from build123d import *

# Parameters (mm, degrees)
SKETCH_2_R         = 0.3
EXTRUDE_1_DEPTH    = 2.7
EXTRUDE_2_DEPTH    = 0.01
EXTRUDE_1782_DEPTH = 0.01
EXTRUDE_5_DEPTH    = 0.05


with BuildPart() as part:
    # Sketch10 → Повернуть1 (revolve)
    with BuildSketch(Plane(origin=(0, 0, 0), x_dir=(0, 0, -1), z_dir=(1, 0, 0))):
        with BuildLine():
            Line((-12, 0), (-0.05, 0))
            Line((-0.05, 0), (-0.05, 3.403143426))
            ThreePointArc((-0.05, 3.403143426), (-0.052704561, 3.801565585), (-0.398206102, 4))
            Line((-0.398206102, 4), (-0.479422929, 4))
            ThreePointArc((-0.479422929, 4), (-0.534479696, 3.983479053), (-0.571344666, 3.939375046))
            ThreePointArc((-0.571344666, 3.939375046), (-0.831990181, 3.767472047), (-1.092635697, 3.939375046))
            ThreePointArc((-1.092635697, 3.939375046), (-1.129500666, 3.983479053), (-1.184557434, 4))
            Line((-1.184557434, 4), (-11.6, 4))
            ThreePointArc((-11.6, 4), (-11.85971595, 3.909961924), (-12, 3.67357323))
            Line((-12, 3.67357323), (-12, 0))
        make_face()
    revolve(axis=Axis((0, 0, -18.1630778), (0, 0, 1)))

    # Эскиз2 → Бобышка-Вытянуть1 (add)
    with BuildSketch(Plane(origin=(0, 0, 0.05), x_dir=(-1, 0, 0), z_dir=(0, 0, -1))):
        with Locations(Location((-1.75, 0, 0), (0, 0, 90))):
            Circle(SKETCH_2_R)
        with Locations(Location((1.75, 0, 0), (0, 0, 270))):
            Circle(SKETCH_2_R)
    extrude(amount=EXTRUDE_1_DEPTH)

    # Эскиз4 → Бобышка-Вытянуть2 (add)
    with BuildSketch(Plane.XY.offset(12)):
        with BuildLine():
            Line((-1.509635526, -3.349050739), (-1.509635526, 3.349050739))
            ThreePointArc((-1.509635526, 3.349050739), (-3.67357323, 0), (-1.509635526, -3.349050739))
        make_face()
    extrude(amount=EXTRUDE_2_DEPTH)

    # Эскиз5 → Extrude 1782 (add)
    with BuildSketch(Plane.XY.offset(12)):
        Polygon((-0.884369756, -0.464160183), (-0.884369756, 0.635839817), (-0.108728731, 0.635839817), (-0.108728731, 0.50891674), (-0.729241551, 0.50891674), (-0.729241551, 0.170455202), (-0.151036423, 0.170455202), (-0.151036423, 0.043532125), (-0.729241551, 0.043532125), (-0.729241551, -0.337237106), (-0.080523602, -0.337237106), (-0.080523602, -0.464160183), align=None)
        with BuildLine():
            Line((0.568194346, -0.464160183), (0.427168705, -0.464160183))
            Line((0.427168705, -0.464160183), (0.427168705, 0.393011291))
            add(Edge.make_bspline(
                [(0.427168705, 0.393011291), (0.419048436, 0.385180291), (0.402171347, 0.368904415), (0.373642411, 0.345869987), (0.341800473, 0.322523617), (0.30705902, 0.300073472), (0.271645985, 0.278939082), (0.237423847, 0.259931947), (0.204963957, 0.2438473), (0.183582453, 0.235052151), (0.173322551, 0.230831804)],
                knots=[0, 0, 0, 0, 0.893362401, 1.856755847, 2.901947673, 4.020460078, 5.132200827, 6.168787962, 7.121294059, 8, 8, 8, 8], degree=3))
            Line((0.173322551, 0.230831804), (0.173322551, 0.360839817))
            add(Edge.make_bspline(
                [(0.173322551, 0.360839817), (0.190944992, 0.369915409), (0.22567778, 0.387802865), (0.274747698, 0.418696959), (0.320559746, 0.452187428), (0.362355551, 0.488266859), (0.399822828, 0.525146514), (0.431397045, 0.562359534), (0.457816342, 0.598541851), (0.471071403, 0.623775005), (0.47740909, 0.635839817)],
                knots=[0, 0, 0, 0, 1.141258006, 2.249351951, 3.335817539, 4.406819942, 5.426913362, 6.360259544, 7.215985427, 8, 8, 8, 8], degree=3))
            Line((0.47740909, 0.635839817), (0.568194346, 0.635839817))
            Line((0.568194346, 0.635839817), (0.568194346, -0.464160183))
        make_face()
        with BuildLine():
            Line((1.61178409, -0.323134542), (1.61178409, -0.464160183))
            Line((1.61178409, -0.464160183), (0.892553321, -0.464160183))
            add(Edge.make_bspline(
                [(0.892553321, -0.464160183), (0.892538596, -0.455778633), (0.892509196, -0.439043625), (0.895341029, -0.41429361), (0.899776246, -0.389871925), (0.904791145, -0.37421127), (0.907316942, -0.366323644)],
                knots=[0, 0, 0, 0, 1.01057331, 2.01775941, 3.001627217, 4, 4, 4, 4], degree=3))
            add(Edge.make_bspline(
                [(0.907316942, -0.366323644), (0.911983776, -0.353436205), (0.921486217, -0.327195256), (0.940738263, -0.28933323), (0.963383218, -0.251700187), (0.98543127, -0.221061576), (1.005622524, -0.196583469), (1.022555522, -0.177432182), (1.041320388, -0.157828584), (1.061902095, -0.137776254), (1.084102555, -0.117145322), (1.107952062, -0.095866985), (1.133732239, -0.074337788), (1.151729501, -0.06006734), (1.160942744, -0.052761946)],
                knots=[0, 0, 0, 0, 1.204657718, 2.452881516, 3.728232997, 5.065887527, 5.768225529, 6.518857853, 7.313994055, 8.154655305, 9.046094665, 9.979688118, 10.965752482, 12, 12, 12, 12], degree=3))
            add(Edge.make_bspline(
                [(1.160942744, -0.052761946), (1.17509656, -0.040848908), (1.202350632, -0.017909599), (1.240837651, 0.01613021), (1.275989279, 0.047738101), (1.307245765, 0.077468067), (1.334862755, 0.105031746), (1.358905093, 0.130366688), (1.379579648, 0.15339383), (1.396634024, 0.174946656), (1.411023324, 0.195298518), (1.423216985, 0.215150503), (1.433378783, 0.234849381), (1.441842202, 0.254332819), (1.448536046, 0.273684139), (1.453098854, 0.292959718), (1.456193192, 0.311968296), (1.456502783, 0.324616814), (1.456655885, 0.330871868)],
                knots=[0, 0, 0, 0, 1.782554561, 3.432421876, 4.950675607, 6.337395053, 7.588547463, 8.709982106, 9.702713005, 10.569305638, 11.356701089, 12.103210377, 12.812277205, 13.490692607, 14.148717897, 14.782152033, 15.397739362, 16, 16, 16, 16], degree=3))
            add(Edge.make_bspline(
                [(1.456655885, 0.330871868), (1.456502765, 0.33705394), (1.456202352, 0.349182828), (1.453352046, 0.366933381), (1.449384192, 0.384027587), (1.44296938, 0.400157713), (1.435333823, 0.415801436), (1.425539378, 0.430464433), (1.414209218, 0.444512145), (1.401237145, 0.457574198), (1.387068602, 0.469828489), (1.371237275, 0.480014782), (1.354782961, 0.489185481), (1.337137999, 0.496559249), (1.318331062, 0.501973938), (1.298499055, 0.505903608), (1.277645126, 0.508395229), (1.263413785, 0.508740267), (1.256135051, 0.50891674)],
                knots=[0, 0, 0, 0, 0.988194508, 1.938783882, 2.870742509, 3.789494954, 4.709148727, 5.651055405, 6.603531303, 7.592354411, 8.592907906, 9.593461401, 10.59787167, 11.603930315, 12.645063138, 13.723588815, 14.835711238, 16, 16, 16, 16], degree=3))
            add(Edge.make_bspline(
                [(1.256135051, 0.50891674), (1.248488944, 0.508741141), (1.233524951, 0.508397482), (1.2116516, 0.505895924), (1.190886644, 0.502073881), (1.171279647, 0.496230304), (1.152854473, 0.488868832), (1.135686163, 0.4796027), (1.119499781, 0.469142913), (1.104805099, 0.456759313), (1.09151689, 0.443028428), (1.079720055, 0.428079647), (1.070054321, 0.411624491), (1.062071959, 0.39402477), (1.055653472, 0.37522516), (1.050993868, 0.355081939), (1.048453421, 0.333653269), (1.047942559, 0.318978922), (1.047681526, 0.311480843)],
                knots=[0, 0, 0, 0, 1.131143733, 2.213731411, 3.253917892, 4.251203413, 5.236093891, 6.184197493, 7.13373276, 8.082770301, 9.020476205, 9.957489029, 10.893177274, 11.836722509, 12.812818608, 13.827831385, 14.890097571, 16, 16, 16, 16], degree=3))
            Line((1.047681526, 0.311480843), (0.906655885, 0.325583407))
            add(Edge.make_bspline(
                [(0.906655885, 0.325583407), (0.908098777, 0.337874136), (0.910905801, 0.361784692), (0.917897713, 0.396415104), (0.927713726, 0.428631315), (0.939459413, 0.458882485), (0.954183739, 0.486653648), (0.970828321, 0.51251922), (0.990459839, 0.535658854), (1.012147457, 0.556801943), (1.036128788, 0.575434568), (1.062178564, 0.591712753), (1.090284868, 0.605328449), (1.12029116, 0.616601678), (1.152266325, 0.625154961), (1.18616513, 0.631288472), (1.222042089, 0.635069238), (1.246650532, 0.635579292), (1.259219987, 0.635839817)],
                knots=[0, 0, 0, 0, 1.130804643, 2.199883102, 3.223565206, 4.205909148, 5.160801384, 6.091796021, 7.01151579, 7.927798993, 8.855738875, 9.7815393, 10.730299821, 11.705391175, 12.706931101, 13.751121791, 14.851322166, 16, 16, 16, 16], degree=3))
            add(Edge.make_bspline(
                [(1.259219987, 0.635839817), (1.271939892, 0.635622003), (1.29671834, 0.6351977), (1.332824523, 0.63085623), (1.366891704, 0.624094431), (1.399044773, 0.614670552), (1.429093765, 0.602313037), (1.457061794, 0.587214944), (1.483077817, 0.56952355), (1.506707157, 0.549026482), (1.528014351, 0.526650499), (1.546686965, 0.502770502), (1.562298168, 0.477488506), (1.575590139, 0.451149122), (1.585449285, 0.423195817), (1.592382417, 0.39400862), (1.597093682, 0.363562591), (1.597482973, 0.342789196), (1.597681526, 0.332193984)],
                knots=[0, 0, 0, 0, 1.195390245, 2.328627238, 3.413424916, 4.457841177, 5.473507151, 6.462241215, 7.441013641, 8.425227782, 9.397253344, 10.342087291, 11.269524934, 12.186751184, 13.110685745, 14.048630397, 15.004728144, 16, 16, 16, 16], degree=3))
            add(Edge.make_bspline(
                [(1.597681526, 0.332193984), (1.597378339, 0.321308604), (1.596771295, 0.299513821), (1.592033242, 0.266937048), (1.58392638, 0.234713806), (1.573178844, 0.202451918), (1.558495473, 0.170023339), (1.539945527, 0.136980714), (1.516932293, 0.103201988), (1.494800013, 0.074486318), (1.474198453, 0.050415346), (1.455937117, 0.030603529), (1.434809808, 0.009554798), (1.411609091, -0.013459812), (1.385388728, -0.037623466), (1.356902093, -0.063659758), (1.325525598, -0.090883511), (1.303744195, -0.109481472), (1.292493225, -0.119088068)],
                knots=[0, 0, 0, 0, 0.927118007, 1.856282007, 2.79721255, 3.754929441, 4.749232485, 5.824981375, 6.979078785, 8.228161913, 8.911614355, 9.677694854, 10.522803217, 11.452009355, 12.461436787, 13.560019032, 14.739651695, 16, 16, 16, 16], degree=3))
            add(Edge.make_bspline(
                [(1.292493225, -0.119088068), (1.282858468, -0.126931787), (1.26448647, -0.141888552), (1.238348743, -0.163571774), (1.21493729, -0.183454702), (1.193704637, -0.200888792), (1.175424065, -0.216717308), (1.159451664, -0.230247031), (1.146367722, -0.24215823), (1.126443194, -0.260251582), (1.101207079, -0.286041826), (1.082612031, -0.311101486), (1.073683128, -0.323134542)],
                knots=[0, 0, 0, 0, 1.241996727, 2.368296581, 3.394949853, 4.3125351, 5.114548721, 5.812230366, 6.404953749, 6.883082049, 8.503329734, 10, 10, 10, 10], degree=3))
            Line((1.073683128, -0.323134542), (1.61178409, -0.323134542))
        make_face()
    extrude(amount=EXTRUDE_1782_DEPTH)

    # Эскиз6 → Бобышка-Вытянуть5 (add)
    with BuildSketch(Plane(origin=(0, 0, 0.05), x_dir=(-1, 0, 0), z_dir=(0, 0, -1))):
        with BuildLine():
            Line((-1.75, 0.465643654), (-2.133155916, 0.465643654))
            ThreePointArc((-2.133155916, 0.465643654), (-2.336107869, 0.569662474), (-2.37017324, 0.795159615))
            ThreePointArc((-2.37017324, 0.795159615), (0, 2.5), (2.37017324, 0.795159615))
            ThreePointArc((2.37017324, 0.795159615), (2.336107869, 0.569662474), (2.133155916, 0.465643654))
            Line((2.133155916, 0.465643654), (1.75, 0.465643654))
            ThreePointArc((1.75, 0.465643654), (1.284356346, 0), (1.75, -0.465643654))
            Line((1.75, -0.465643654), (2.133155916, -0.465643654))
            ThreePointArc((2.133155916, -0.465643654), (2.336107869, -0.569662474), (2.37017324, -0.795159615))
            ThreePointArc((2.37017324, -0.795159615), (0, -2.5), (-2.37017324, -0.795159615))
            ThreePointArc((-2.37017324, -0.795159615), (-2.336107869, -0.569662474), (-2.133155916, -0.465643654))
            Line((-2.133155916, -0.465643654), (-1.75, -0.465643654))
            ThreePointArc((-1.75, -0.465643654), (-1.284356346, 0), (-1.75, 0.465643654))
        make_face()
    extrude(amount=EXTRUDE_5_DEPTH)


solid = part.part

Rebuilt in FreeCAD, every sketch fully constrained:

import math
import FreeCAD as App
import Part
import Sketcher
Q = App.Units.Quantity


def add_polygon(sketch, points):
    """Adds a closed chain of lines whose ends are joined by coincident constraints."""
    first, n = sketch.GeometryCount, len(points)
    for a, b in zip(points, points[1:] + points[:1]):
        sketch.addGeometry(Part.LineSegment(App.Vector(*a, 0), App.Vector(*b, 0)), False)
    for i in range(n):
        sketch.addConstraint(Sketcher.Constraint("Coincident", first + i, 2, first + (i + 1) % n, 1))

doc = App.newDocument("Part")
body = doc.addObject("PartDesign::Body", "Body")

# Sketch on YZ plane
sketch1 = body.newObject("Sketcher::SketchObject", "Sketch")
sketch1.AttachmentSupport = (doc.getObject("YZ_Plane"), [""])
sketch1.MapMode = "FlatFace"
sketch1.addGeometry(Part.LineSegment(App.Vector(0, 12, 0), App.Vector(0, 0.05, 0)), False)
sketch1.addGeometry(Part.LineSegment(App.Vector(0, 0.05, 0), App.Vector(3.4, 0.05, 0)), False)
sketch1.addGeometry(Part.ArcOfCircle(Part.Circle(App.Vector(3.6, 0.4, 0), App.Vector(0, 0, 1), 0.4), math.radians(-119), math.radians(0)), False)
sketch1.addGeometry(Part.LineSegment(App.Vector(4, 0.4, 0), App.Vector(4, 0.48, 0)), False)
sketch1.addGeometry(Part.ArcOfCircle(Part.Circle(App.Vector(3.9, 0.48, 0), App.Vector(0, 0, 1), 0.1), math.radians(0), math.radians(67)), False)
sketch1.addGeometry(Part.ArcOfCircle(Part.Circle(App.Vector(4.05, 0.83, 0), App.Vector(0, 0, 1), 0.28), math.radians(113), math.radians(247)), False)
sketch1.addGeometry(Part.ArcOfCircle(Part.Circle(App.Vector(3.9, 1.18, 0), App.Vector(0, 0, 1), 0.1), math.radians(-67), math.radians(0)), False)
sketch1.addGeometry(Part.LineSegment(App.Vector(4, 1.18, 0), App.Vector(4, 11.6, 0)), False)
sketch1.addGeometry(Part.ArcOfCircle(Part.Circle(App.Vector(3.6, 11.61, 0), App.Vector(0, 0, 1), 0.4), math.radians(-1), math.radians(79)), False)
sketch1.addGeometry(Part.LineSegment(App.Vector(3.67, 12, 0), App.Vector(0, 12, 0)), False)
sketch1.addConstraint(Sketcher.Constraint("Coincident", 0, 2, 1, 1))
sketch1.addConstraint(Sketcher.Constraint("Coincident", 1, 2, 2, 1))
sketch1.addConstraint(Sketcher.Constraint("Tangent", 2, 2, 3, 1))
sketch1.addConstraint(Sketcher.Constraint("Tangent", 3, 2, 4, 1))
sketch1.addConstraint(Sketcher.Constraint("Tangent", 4, 2, 5, 2))
sketch1.addConstraint(Sketcher.Constraint("Tangent", 5, 1, 6, 1))
sketch1.addConstraint(Sketcher.Constraint("Tangent", 6, 2, 7, 1))
sketch1.addConstraint(Sketcher.Constraint("Coincident", 7, 2, 8, 1))
sketch1.addConstraint(Sketcher.Constraint("Coincident", 8, 2, 9, 1))
sketch1.addConstraint(Sketcher.Constraint("Coincident", 9, 2, 0, 1))
sketch1.addConstraint(Sketcher.Constraint("Vertical", 0))
sketch1.addConstraint(Sketcher.Constraint("Horizontal", 1))
sketch1.addConstraint(Sketcher.Constraint("Vertical", 3))
sketch1.addConstraint(Sketcher.Constraint("Vertical", 7))
sketch1.addConstraint(Sketcher.Constraint("Horizontal", 9))
sketch1.addConstraint(Sketcher.Constraint("Equal", 4, 6))
sketch1.addConstraint(Sketcher.Constraint("Equal", 2, 8))
sketch1.addConstraint(Sketcher.Constraint("PointOnObject", 0, 2, -2))
sketch1.addConstraint(Sketcher.Constraint("Vertical", 4, 3, 6, 3))
sketch1.addConstraint(Sketcher.Constraint("Radius", 2, Q("0.4 mm")))
sketch1.addConstraint(Sketcher.Constraint("Radius", 4, Q("0.1 mm")))
sketch1.addConstraint(Sketcher.Constraint("DistanceX", -1, 1, 2, 2, Q("4 mm")))
sketch1.addConstraint(Sketcher.Constraint("DistanceY", -1, 1, 8, 2, Q("12 mm")))
sketch1.addConstraint(Sketcher.Constraint("DistanceY", 0, 2, 0, 1, Q("11.95 mm")))
sketch1.addConstraint(Sketcher.Constraint("DistanceY", -1, 1, 7, 2, Q("11.6 mm")))
sketch1.addConstraint(Sketcher.Constraint("Radius", 5, Q("0.283552 mm")))
sketch1.addConstraint(Sketcher.Constraint("DistanceX", 8, 2, 5, 1, Q("0.265802 mm")))
sketch1.addConstraint(Sketcher.Constraint("DistanceX", 1, 1, 1, 2, Q("3.403143 mm")))
sketch1.addConstraint(Sketcher.Constraint("DistanceX", 9, 2, 9, 1, Q("3.673573 mm")))
sketch1.addConstraint(Sketcher.Constraint("DistanceY", 3, 1, 3, 2, Q("0.081217 mm")))
revolution = body.newObject("PartDesign::Revolution", "Revolution")
revolution.Profile = sketch1
revolution.ReferenceAxis = (sketch1, ["V_Axis"])
revolution.Angle = 360

# Sketch on XY plane
sketch2 = body.newObject("Sketcher::SketchObject", "Sketch001")
sketch2.AttachmentSupport = (doc.getObject("XY_Plane"), [""])
sketch2.MapMode = "FlatFace"
sketch2.AttachmentOffset = App.Placement(App.Vector(0, 0, 0.05), App.Rotation())
sketch2.addGeometry(Part.Circle(App.Vector(1.75, 0, 0), App.Vector(0, 0, 1), 0.3), False)
sketch2.addGeometry(Part.Circle(App.Vector(-1.75, 0, 0), App.Vector(0, 0, 1), 0.3), False)
sketch2.addConstraint(Sketcher.Constraint("Equal", 0, 1))
sketch2.addConstraint(Sketcher.Constraint("Symmetric", 0, 3, 1, 3, -1, 1))
sketch2.addConstraint(Sketcher.Constraint("PointOnObject", 0, 3, -1))
sketch2.addConstraint(Sketcher.Constraint("Diameter", 0, Q("0.6 mm")))
sketch2.addConstraint(Sketcher.Constraint("DistanceX", 1, 3, 0, 3, Q("3.5 mm")))
pad1 = body.newObject("PartDesign::Pad", "Pad")
pad1.Profile = sketch2
pad1.Length = 2.7
pad1.Reversed = True

# Sketch on XY plane
sketch3 = body.newObject("Sketcher::SketchObject", "Sketch002")
sketch3.AttachmentSupport = (doc.getObject("XY_Plane"), [""])
sketch3.MapMode = "FlatFace"
sketch3.AttachmentOffset = App.Placement(App.Vector(0, 0, 12), App.Rotation())
sketch3.addGeometry(Part.LineSegment(App.Vector(-1.5, -3.3, 0), App.Vector(-1.5, 3.3, 0)), False)
sketch3.addGeometry(Part.ArcOfCircle(Part.Circle(App.Vector(0, 0, 0), App.Vector(0, 0, 1), 3.7), math.radians(114), math.radians(246)), False)
sketch3.addConstraint(Sketcher.Constraint("Coincident", 0, 1, 1, 2))
sketch3.addConstraint(Sketcher.Constraint("Coincident", 1, 1, 0, 2))
sketch3.addConstraint(Sketcher.Constraint("Vertical", 0))
sketch3.addConstraint(Sketcher.Constraint("Coincident", 1, 3, -1, 1))
sketch3.addConstraint(Sketcher.Constraint("DistanceY", 0, 1, 0, 2, Q("6.698101 mm")))
sketch3.addConstraint(Sketcher.Constraint("Radius", 1, Q("3.673573 mm")))
pad2 = body.newObject("PartDesign::Pad", "Pad001")
pad2.Profile = sketch3
pad2.Length = 0.01

# Sketch on XY plane
sketch4 = body.newObject("Sketcher::SketchObject", "Sketch003")
sketch4.AttachmentSupport = (doc.getObject("XY_Plane"), [""])
sketch4.MapMode = "FlatFace"
sketch4.AttachmentOffset = App.Placement(App.Vector(0, 0, 12), App.Rotation())
add_polygon(sketch4, [(-0.88437, 0.63584), (-0.88437, -0.46416), (-0.080524, -0.46416), (-0.080524, -0.337237), (-0.729242, -0.337237), (-0.729242, 0.043532), (-0.151036, 0.043532), (-0.151036, 0.170455), (-0.729242, 0.170455), (-0.729242, 0.508917), (-0.108729, 0.508917), (-0.108729, 0.63584)])  # lines 0-11
sketch4.addGeometry(Part.LineSegment(App.Vector(0.427169, -0.46416, 0), App.Vector(0.568194, -0.46416, 0)), False)  # 12
sketch4.addGeometry(Part.LineSegment(App.Vector(0.568194, -0.46416, 0), App.Vector(0.568194, 0.63584, 0)), False)  # 13
sketch4.addGeometry(Part.LineSegment(App.Vector(0.568194, 0.63584, 0), App.Vector(0.477409, 0.63584, 0)), False)  # 14
sketch4.addGeometry(Part.BSplineCurve([App.Vector(0.173323, 0.36084, 0), App.Vector(0.190945, 0.369915, 0), App.Vector(0.225678, 0.387803, 0), App.Vector(0.274748, 0.418697, 0), App.Vector(0.32056, 0.452187, 0), App.Vector(0.362356, 0.488267, 0), App.Vector(0.399823, 0.525147, 0), App.Vector(0.431397, 0.56236, 0), App.Vector(0.457816, 0.598542, 0), App.Vector(0.471071, 0.623775, 0), App.Vector(0.477409, 0.63584, 0)], [4, 1, 1, 1, 1, 1, 1, 1, 4], [0, 1.141258006, 2.249351951, 3.335817539, 4.406819942, 5.426913362, 6.360259544, 7.215985427, 8], False, 3, [1, 1, 1, 1, 1, 1, 1, 1, 1, 1, 1], False), False)  # 15
sketch4.addGeometry(Part.LineSegment(App.Vector(0.173323, 0.36084, 0), App.Vector(0.173323, 0.230832, 0)), False)  # 16
sketch4.addGeometry(Part.BSplineCurve([App.Vector(0.427169, 0.393011, 0), App.Vector(0.419048, 0.38518, 0), App.Vector(0.402171, 0.368904, 0), App.Vector(0.373642, 0.34587, 0), App.Vector(0.3418, 0.322524, 0), App.Vector(0.307059, 0.300073, 0), App.Vector(0.271646, 0.278939, 0), App.Vector(0.237424, 0.259932, 0), App.Vector(0.204964, 0.243847, 0), App.Vector(0.183582, 0.235052, 0), App.Vector(0.173323, 0.230832, 0)], [4, 1, 1, 1, 1, 1, 1, 1, 4], [0, 0.893362401, 1.856755847, 2.901947673, 4.020460078, 5.132200827, 6.168787962, 7.121294059, 8], False, 3, [1, 1, 1, 1, 1, 1, 1, 1, 1, 1, 1], False), False)  # 17
sketch4.addGeometry(Part.LineSegment(App.Vector(0.427169, 0.393011, 0), App.Vector(0.427169, -0.46416, 0)), False)  # 18
sketch4.addGeometry(Part.LineSegment(App.Vector(1.611784, -0.46416, 0), App.Vector(1.611784, -0.323135, 0)), False)  # 19
sketch4.addGeometry(Part.LineSegment(App.Vector(1.611784, -0.323135, 0), App.Vector(1.073683, -0.323135, 0)), False)  # 20
sketch4.addGeometry(Part.BSplineCurve([App.Vector(1.292493, -0.119088, 0), App.Vector(1.282858, -0.126932, 0), App.Vector(1.264486, -0.141889, 0), App.Vector(1.238349, -0.163572, 0), App.Vector(1.214937, -0.183455, 0), App.Vector(1.193705, -0.200889, 0), App.Vector(1.175424, -0.216717, 0), App.Vector(1.159452, -0.230247, 0), App.Vector(1.146368, -0.242158, 0), App.Vector(1.126443, -0.260252, 0), App.Vector(1.101207, -0.286042, 0), App.Vector(1.082612, -0.311101, 0), App.Vector(1.073683, -0.323135, 0)], [4, 1, 1, 1, 1, 1, 1, 1, 1, 1, 4], [0, 1.241996727, 2.368296581, 3.394949853, 4.3125351, 5.114548721, 5.812230366, 6.404953749, 6.883082049, 8.503329734, 10], False, 3, [1, 1, 1, 1, 1, 1, 1, 1, 1, 1, 1, 1, 1], False), False)  # 21
sketch4.addGeometry(Part.BSplineCurve([App.Vector(1.597682, 0.332194, 0), App.Vector(1.597378, 0.321309, 0), App.Vector(1.596771, 0.299514, 0), App.Vector(1.592033, 0.266937, 0), App.Vector(1.583926, 0.234714, 0), App.Vector(1.573179, 0.202452, 0), App.Vector(1.558495, 0.170023, 0), App.Vector(1.539946, 0.136981, 0), App.Vector(1.516932, 0.103202, 0), App.Vector(1.4948, 0.074486, 0), App.Vector(1.474198, 0.050415, 0), App.Vector(1.455937, 0.030604, 0), App.Vector(1.43481, 0.009555, 0), App.Vector(1.411609, -0.01346, 0), App.Vector(1.385389, -0.037623, 0), App.Vector(1.356902, -0.06366, 0), App.Vector(1.325526, -0.090884, 0), App.Vector(1.303744, -0.109481, 0), App.Vector(1.292493, -0.119088, 0)], [4, 1, 1, 1, 1, 1, 1, 1, 1, 1, 1, 1, 1, 1, 1, 1, 4], [0, 0.927118007, 1.856282007, 2.79721255, 3.754929441, 4.749232485, 5.824981375, 6.979078785, 8.228161913, 8.911614355, 9.677694854, 10.522803217, 11.452009355, 12.461436787, 13.560019032, 14.739651695, 16], False, 3, [1, 1, 1, 1, 1, 1, 1, 1, 1, 1, 1, 1, 1, 1, 1, 1, 1, 1, 1], False), False)  # 22
sketch4.addGeometry(Part.BSplineCurve([App.Vector(1.25922, 0.63584, 0), App.Vector(1.27194, 0.635622, 0), App.Vector(1.296718, 0.635198, 0), App.Vector(1.332825, 0.630856, 0), App.Vector(1.366892, 0.624094, 0), App.Vector(1.399045, 0.614671, 0), App.Vector(1.429094, 0.602313, 0), App.Vector(1.457062, 0.587215, 0), App.Vector(1.483078, 0.569524, 0), App.Vector(1.506707, 0.549026, 0), App.Vector(1.528014, 0.52665, 0), App.Vector(1.546687, 0.502771, 0), App.Vector(1.562298, 0.477489, 0), App.Vector(1.57559, 0.451149, 0), App.Vector(1.585449, 0.423196, 0), App.Vector(1.592382, 0.394009, 0), App.Vector(1.597094, 0.363563, 0), App.Vector(1.597483, 0.342789, 0), App.Vector(1.597682, 0.332194, 0)], [4, 1, 1, 1, 1, 1, 1, 1, 1, 1, 1, 1, 1, 1, 1, 1, 4], [0, 1.195390245, 2.328627238, 3.413424916, 4.457841177, 5.473507151, 6.462241215, 7.441013641, 8.425227782, 9.397253344, 10.342087291, 11.269524934, 12.186751184, 13.110685745, 14.048630397, 15.004728144, 16], False, 3, [1, 1, 1, 1, 1, 1, 1, 1, 1, 1, 1, 1, 1, 1, 1, 1, 1, 1, 1], False), False)  # 23
sketch4.addGeometry(Part.BSplineCurve([App.Vector(0.906656, 0.325583, 0), App.Vector(0.908099, 0.337874, 0), App.Vector(0.910906, 0.361785, 0), App.Vector(0.917898, 0.396415, 0), App.Vector(0.927714, 0.428631, 0), App.Vector(0.939459, 0.458882, 0), App.Vector(0.954184, 0.486654, 0), App.Vector(0.970828, 0.512519, 0), App.Vector(0.99046, 0.535659, 0), App.Vector(1.012147, 0.556802, 0), App.Vector(1.036129, 0.575435, 0), App.Vector(1.062179, 0.591713, 0), App.Vector(1.090285, 0.605328, 0), App.Vector(1.120291, 0.616602, 0), App.Vector(1.152266, 0.625155, 0), App.Vector(1.186165, 0.631288, 0), App.Vector(1.222042, 0.635069, 0), App.Vector(1.246651, 0.635579, 0), App.Vector(1.25922, 0.63584, 0)], [4, 1, 1, 1, 1, 1, 1, 1, 1, 1, 1, 1, 1, 1, 1, 1, 4], [0, 1.130804643, 2.199883102, 3.223565206, 4.205909148, 5.160801384, 6.091796021, 7.01151579, 7.927798993, 8.855738875, 9.7815393, 10.730299821, 11.705391175, 12.706931101, 13.751121791, 14.851322166, 16], False, 3, [1, 1, 1, 1, 1, 1, 1, 1, 1, 1, 1, 1, 1, 1, 1, 1, 1, 1, 1], False), False)  # 24
sketch4.addGeometry(Part.LineSegment(App.Vector(0.906656, 0.325583, 0), App.Vector(1.047682, 0.311481, 0)), False)  # 25
sketch4.addGeometry(Part.BSplineCurve([App.Vector(1.256135, 0.508917, 0), App.Vector(1.248489, 0.508741, 0), App.Vector(1.233525, 0.508397, 0), App.Vector(1.211652, 0.505896, 0), App.Vector(1.190887, 0.502074, 0), App.Vector(1.17128, 0.49623, 0), App.Vector(1.152854, 0.488869, 0), App.Vector(1.135686, 0.479603, 0), App.Vector(1.1195, 0.469143, 0), App.Vector(1.104805, 0.456759, 0), App.Vector(1.091517, 0.443028, 0), App.Vector(1.07972, 0.42808, 0), App.Vector(1.070054, 0.411624, 0), App.Vector(1.062072, 0.394025, 0), App.Vector(1.055653, 0.375225, 0), App.Vector(1.050994, 0.355082, 0), App.Vector(1.048453, 0.333653, 0), App.Vector(1.047943, 0.318979, 0), App.Vector(1.047682, 0.311481, 0)], [4, 1, 1, 1, 1, 1, 1, 1, 1, 1, 1, 1, 1, 1, 1, 1, 4], [0, 1.131143733, 2.213731411, 3.253917892, 4.251203413, 5.236093891, 6.184197493, 7.13373276, 8.082770301, 9.020476205, 9.957489029, 10.893177274, 11.836722509, 12.812818608, 13.827831385, 14.890097571, 16], False, 3, [1, 1, 1, 1, 1, 1, 1, 1, 1, 1, 1, 1, 1, 1, 1, 1, 1, 1, 1], False), False)  # 26
sketch4.addGeometry(Part.BSplineCurve([App.Vector(1.456656, 0.330872, 0), App.Vector(1.456503, 0.337054, 0), App.Vector(1.456202, 0.349183, 0), App.Vector(1.453352, 0.366933, 0), App.Vector(1.449384, 0.384028, 0), App.Vector(1.442969, 0.400158, 0), App.Vector(1.435334, 0.415801, 0), App.Vector(1.425539, 0.430464, 0), App.Vector(1.414209, 0.444512, 0), App.Vector(1.401237, 0.457574, 0), App.Vector(1.387069, 0.469828, 0), App.Vector(1.371237, 0.480015, 0), App.Vector(1.354783, 0.489185, 0), App.Vector(1.337138, 0.496559, 0), App.Vector(1.318331, 0.501974, 0), App.Vector(1.298499, 0.505904, 0), App.Vector(1.277645, 0.508395, 0), App.Vector(1.263414, 0.50874, 0), App.Vector(1.256135, 0.508917, 0)], [4, 1, 1, 1, 1, 1, 1, 1, 1, 1, 1, 1, 1, 1, 1, 1, 4], [0, 0.988194508, 1.938783882, 2.870742509, 3.789494954, 4.709148727, 5.651055405, 6.603531303, 7.592354411, 8.592907906, 9.593461401, 10.59787167, 11.603930315, 12.645063138, 13.723588815, 14.835711238, 16], False, 3, [1, 1, 1, 1, 1, 1, 1, 1, 1, 1, 1, 1, 1, 1, 1, 1, 1, 1, 1], False), False)  # 27
sketch4.addGeometry(Part.BSplineCurve([App.Vector(1.160943, -0.052762, 0), App.Vector(1.175097, -0.040849, 0), App.Vector(1.202351, -0.01791, 0), App.Vector(1.240838, 0.01613, 0), App.Vector(1.275989, 0.047738, 0), App.Vector(1.307246, 0.077468, 0), App.Vector(1.334863, 0.105032, 0), App.Vector(1.358905, 0.130367, 0), App.Vector(1.37958, 0.153394, 0), App.Vector(1.396634, 0.174947, 0), App.Vector(1.411023, 0.195299, 0), App.Vector(1.423217, 0.215151, 0), App.Vector(1.433379, 0.234849, 0), App.Vector(1.441842, 0.254333, 0), App.Vector(1.448536, 0.273684, 0), App.Vector(1.453099, 0.29296, 0), App.Vector(1.456193, 0.311968, 0), App.Vector(1.456503, 0.324617, 0), App.Vector(1.456656, 0.330872, 0)], [4, 1, 1, 1, 1, 1, 1, 1, 1, 1, 1, 1, 1, 1, 1, 1, 4], [0, 1.782554561, 3.432421876, 4.950675607, 6.337395053, 7.588547463, 8.709982106, 9.702713005, 10.569305638, 11.356701089, 12.103210377, 12.812277205, 13.490692607, 14.148717897, 14.782152033, 15.397739362, 16], False, 3, [1, 1, 1, 1, 1, 1, 1, 1, 1, 1, 1, 1, 1, 1, 1, 1, 1, 1, 1], False), False)  # 28
sketch4.addGeometry(Part.BSplineCurve([App.Vector(0.907317, -0.366324, 0), App.Vector(0.911984, -0.353436, 0), App.Vector(0.921486, -0.327195, 0), App.Vector(0.940738, -0.289333, 0), App.Vector(0.963383, -0.2517, 0), App.Vector(0.985431, -0.221062, 0), App.Vector(1.005623, -0.196583, 0), App.Vector(1.022556, -0.177432, 0), App.Vector(1.04132, -0.157829, 0), App.Vector(1.061902, -0.137776, 0), App.Vector(1.084103, -0.117145, 0), App.Vector(1.107952, -0.095867, 0), App.Vector(1.133732, -0.074338, 0), App.Vector(1.15173, -0.060067, 0), App.Vector(1.160943, -0.052762, 0)], [4, 1, 1, 1, 1, 1, 1, 1, 1, 1, 1, 1, 4], [0, 1.204657718, 2.452881516, 3.728232997, 5.065887527, 5.768225529, 6.518857853, 7.313994055, 8.154655305, 9.046094665, 9.979688118, 10.965752482, 12], False, 3, [1, 1, 1, 1, 1, 1, 1, 1, 1, 1, 1, 1, 1, 1, 1], False), False)  # 29
sketch4.addGeometry(Part.BSplineCurve([App.Vector(0.892553, -0.46416, 0), App.Vector(0.892539, -0.455779, 0), App.Vector(0.892509, -0.439044, 0), App.Vector(0.895341, -0.414294, 0), App.Vector(0.899776, -0.389872, 0), App.Vector(0.904791, -0.374211, 0), App.Vector(0.907317, -0.366324, 0)], [4, 1, 1, 1, 4], [0, 1.01057331, 2.01775941, 3.001627217, 4], False, 3, [1, 1, 1, 1, 1, 1, 1], False), False)  # 30
sketch4.addGeometry(Part.LineSegment(App.Vector(0.892553, -0.46416, 0), App.Vector(1.611784, -0.46416, 0)), False)  # 31
sketch4.addConstraint(Sketcher.Constraint("Block", 15))
sketch4.addConstraint(Sketcher.Constraint("Block", 17))
sketch4.addConstraint(Sketcher.Constraint("Block", 21))
sketch4.addConstraint(Sketcher.Constraint("Block", 22))
sketch4.addConstraint(Sketcher.Constraint("Block", 23))
sketch4.addConstraint(Sketcher.Constraint("Block", 24))
sketch4.addConstraint(Sketcher.Constraint("Block", 26))
sketch4.addConstraint(Sketcher.Constraint("Block", 27))
sketch4.addConstraint(Sketcher.Constraint("Block", 28))
sketch4.addConstraint(Sketcher.Constraint("Block", 29))
sketch4.addConstraint(Sketcher.Constraint("Block", 30))
sketch4.addConstraint(Sketcher.Constraint("Coincident", 12, 2, 13, 1))
sketch4.addConstraint(Sketcher.Constraint("Coincident", 13, 2, 14, 1))
sketch4.addConstraint(Sketcher.Constraint("Coincident", 14, 2, 15, 2))
sketch4.addConstraint(Sketcher.Constraint("Coincident", 15, 1, 16, 1))
sketch4.addConstraint(Sketcher.Constraint("Coincident", 16, 2, 17, 2))
sketch4.addConstraint(Sketcher.Constraint("Coincident", 17, 1, 18, 1))
sketch4.addConstraint(Sketcher.Constraint("Coincident", 18, 2, 12, 1))
sketch4.addConstraint(Sketcher.Constraint("Coincident", 19, 2, 20, 1))
sketch4.addConstraint(Sketcher.Constraint("Coincident", 20, 2, 21, 2))
sketch4.addConstraint(Sketcher.Constraint("Coincident", 24, 1, 25, 1))
sketch4.addConstraint(Sketcher.Constraint("Coincident", 25, 2, 26, 2))
sketch4.addConstraint(Sketcher.Constraint("Coincident", 30, 1, 31, 1))
sketch4.addConstraint(Sketcher.Constraint("Coincident", 31, 2, 19, 1))
sketch4.addConstraint(Sketcher.Constraint("Vertical", 0))
sketch4.addConstraint(Sketcher.Constraint("Horizontal", 1))
sketch4.addConstraint(Sketcher.Constraint("Vertical", 2))
sketch4.addConstraint(Sketcher.Constraint("Horizontal", 3))
sketch4.addConstraint(Sketcher.Constraint("Vertical", 4))
sketch4.addConstraint(Sketcher.Constraint("Horizontal", 5))
sketch4.addConstraint(Sketcher.Constraint("Vertical", 6))
sketch4.addConstraint(Sketcher.Constraint("Horizontal", 7))
sketch4.addConstraint(Sketcher.Constraint("Vertical", 8))
sketch4.addConstraint(Sketcher.Constraint("Horizontal", 9))
sketch4.addConstraint(Sketcher.Constraint("Vertical", 10))
sketch4.addConstraint(Sketcher.Constraint("Horizontal", 11))
sketch4.addConstraint(Sketcher.Constraint("Horizontal", 12))
sketch4.addConstraint(Sketcher.Constraint("Vertical", 13))
sketch4.addConstraint(Sketcher.Constraint("Horizontal", 14))
sketch4.addConstraint(Sketcher.Constraint("Vertical", 18))
sketch4.addConstraint(Sketcher.Constraint("Vertical", 19))
sketch4.addConstraint(Sketcher.Constraint("Horizontal", 20))
sketch4.addConstraint(Sketcher.Constraint("Horizontal", 31))
sketch4.addConstraint(Sketcher.Constraint("Horizontal", 1, 2, 12, 2))
sketch4.addConstraint(Sketcher.Constraint("Horizontal", 11, 2, 13, 2))
sketch4.addConstraint(Sketcher.Constraint("Horizontal", 18, 2, 31, 2))
sketch4.addConstraint(Sketcher.Constraint("Vertical", 4, 2, 7, 2))
sketch4.addConstraint(Sketcher.Constraint("Equal", 2, 6))
sketch4.addConstraint(Sketcher.Constraint("Equal", 6, 10))
sketch4.addConstraint(Sketcher.Constraint("Equal", 12, 19))
sketch4.addConstraint(Sketcher.Constraint("DistanceX", 20, 2, 20, 1, Q("0.538101 mm")))
sketch4.addConstraint(Sketcher.Constraint("DistanceX", 11, 2, 11, 1, Q("0.775641 mm")))
sketch4.addConstraint(Sketcher.Constraint("DistanceY", 4, 1, 4, 2, Q("0.380769 mm")))
sketch4.addConstraint(Sketcher.Constraint("DistanceY", 8, 1, 8, 2, Q("0.338462 mm")))
sketch4.addConstraint(Sketcher.Constraint("DistanceX", 1, 1, 1, 2, Q("0.803846 mm")))
sketch4.addConstraint(Sketcher.Constraint("DistanceX", 3, 2, 3, 1, Q("0.648718 mm")))
sketch4.addConstraint(Sketcher.Constraint("DistanceX", 5, 1, 5, 2, Q("0.578205 mm")))
sketch4.addConstraint(Sketcher.Constraint("DistanceX", 0, 2, -1, 1, Q("0.88437 mm")))
pad3 = body.newObject("PartDesign::Pad", "Pad002")
pad3.Profile = sketch4
pad3.Length = 0.01

# Sketch on XY plane
sketch5 = body.newObject("Sketcher::SketchObject", "Sketch004")
sketch5.AttachmentSupport = (doc.getObject("XY_Plane"), [""])
sketch5.MapMode = "FlatFace"
sketch5.AttachmentOffset = App.Placement(App.Vector(0, 0, 0.05), App.Rotation())
sketch5.addGeometry(Part.LineSegment(App.Vector(2.13, 0.47, 0), App.Vector(1.75, 0.47, 0)), False)
sketch5.addGeometry(Part.ArcOfCircle(Part.Circle(App.Vector(1.75, 0, 0), App.Vector(0, 0, 1), 0.47), math.radians(90), math.radians(270)), False)
sketch5.addGeometry(Part.LineSegment(App.Vector(1.75, -0.47, 0), App.Vector(2.13, -0.47, 0)), False)
sketch5.addGeometry(Part.ArcOfCircle(Part.Circle(App.Vector(2.13, -0.72, 0), App.Vector(0, 0, 1), 0.25), math.radians(-19), math.radians(90)), False)
sketch5.addGeometry(Part.ArcOfCircle(Part.Circle(App.Vector(0, 0, 0), App.Vector(0, 0, 1), 2.5), math.radians(-161), math.radians(-19)), False)
sketch5.addGeometry(Part.ArcOfCircle(Part.Circle(App.Vector(-2.13, -0.72, 0), App.Vector(0, 0, 1), 0.25), math.radians(90), math.radians(199)), False)
sketch5.addGeometry(Part.LineSegment(App.Vector(-2.13, -0.47, 0), App.Vector(-1.75, -0.47, 0)), False)
sketch5.addGeometry(Part.ArcOfCircle(Part.Circle(App.Vector(-1.75, 0, 0), App.Vector(0, 0, 1), 0.47), math.radians(-90), math.radians(90)), False)
sketch5.addGeometry(Part.LineSegment(App.Vector(-1.75, 0.47, 0), App.Vector(-2.13, 0.47, 0)), False)
sketch5.addGeometry(Part.ArcOfCircle(Part.Circle(App.Vector(-2.13, 0.72, 0), App.Vector(0, 0, 1), 0.25), math.radians(161), math.radians(270)), False)
sketch5.addGeometry(Part.ArcOfCircle(Part.Circle(App.Vector(0, 0, 0), App.Vector(0, 0, 1), 2.5), math.radians(19), math.radians(161)), False)
sketch5.addGeometry(Part.ArcOfCircle(Part.Circle(App.Vector(2.13, 0.72, 0), App.Vector(0, 0, 1), 0.25), math.radians(-90), math.radians(19)), False)
sketch5.addConstraint(Sketcher.Constraint("Tangent", 0, 2, 1, 1))
sketch5.addConstraint(Sketcher.Constraint("Tangent", 1, 2, 2, 1))
sketch5.addConstraint(Sketcher.Constraint("Tangent", 2, 2, 3, 2))
sketch5.addConstraint(Sketcher.Constraint("Tangent", 3, 1, 4, 2))
sketch5.addConstraint(Sketcher.Constraint("Tangent", 4, 1, 5, 2))
sketch5.addConstraint(Sketcher.Constraint("Tangent", 5, 1, 6, 1))
sketch5.addConstraint(Sketcher.Constraint("Tangent", 6, 2, 7, 1))
sketch5.addConstraint(Sketcher.Constraint("Tangent", 7, 2, 8, 1))
sketch5.addConstraint(Sketcher.Constraint("Tangent", 8, 2, 9, 2))
sketch5.addConstraint(Sketcher.Constraint("Tangent", 9, 1, 10, 2))
sketch5.addConstraint(Sketcher.Constraint("Tangent", 10, 1, 11, 2))
sketch5.addConstraint(Sketcher.Constraint("Tangent", 11, 1, 0, 1))
sketch5.addConstraint(Sketcher.Constraint("Horizontal", 0))
sketch5.addConstraint(Sketcher.Constraint("Horizontal", 2))
sketch5.addConstraint(Sketcher.Constraint("Horizontal", 6))
sketch5.addConstraint(Sketcher.Constraint("Horizontal", 8))
sketch5.addConstraint(Sketcher.Constraint("Coincident", 4, 3, -1, 1))
sketch5.addConstraint(Sketcher.Constraint("Coincident", 10, 3, -1, 1))
sketch5.addConstraint(Sketcher.Constraint("Equal", 3, 5))
sketch5.addConstraint(Sketcher.Constraint("Equal", 1, 7))
sketch5.addConstraint(Sketcher.Constraint("Equal", 5, 9))
sketch5.addConstraint(Sketcher.Constraint("Equal", 4, 10))
sketch5.addConstraint(Sketcher.Constraint("Equal", 9, 11))
sketch5.addConstraint(Sketcher.Constraint("Symmetric", 1, 3, 7, 3, -1, 1))
sketch5.addConstraint(Sketcher.Constraint("PointOnObject", 1, 3, -1))
sketch5.addConstraint(Sketcher.Constraint("Radius", 4, Q("2.5 mm")))
sketch5.addConstraint(Sketcher.Constraint("Radius", 3, Q("0.25 mm")))
sketch5.addConstraint(Sketcher.Constraint("DistanceX", 7, 3, 1, 3, Q("3.5 mm")))
sketch5.addConstraint(Sketcher.Constraint("Radius", 1, Q("0.465644 mm")))
pad4 = body.newObject("PartDesign::Pad", "Pad003")
pad4.Profile = sketch5
pad4.Length = 0.05
pad4.Reversed = True

doc.recompute()
